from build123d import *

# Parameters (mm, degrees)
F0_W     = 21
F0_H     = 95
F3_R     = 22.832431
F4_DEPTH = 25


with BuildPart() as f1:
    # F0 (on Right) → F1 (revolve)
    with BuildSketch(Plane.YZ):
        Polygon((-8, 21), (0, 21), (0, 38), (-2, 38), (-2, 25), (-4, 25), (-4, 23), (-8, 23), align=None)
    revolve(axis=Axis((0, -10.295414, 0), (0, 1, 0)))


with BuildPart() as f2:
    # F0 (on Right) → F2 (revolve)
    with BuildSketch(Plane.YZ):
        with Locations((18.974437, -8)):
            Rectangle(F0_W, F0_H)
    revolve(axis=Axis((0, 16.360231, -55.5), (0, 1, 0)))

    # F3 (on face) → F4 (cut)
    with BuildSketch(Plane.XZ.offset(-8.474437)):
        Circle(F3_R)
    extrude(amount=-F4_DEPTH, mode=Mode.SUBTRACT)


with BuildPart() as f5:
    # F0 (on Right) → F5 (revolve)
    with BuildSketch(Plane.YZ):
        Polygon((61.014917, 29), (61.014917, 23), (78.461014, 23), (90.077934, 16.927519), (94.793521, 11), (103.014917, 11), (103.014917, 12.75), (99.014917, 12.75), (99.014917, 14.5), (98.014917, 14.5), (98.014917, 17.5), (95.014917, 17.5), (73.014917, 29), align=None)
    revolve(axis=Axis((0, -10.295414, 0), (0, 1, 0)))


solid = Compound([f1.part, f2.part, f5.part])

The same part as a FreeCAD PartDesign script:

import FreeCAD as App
import Part
import Sketcher

V = App.Vector
Q = App.Units.Quantity

doc = App.newDocument("Part")
body = doc.addObject("PartDesign::Body", "Body")

sketch1 = doc.addObject("Sketcher::SketchObject", "Sketch")
body.addObject(sketch1)
sketch1.AttachmentSupport = (doc.YZ_Plane, [""])
sketch1.MapMode = "FlatFace"
sketch1.addGeometry([
    Part.LineSegment(V(-8, 21, 0), V(0, 21, 0)),
    Part.LineSegment(V(0, 21, 0), V(0, 38, 0)),
    Part.LineSegment(V(0, 38, 0), V(-2, 38, 0)),
    Part.LineSegment(V(-2, 38, 0), V(-2, 25, 0)),
    Part.LineSegment(V(-2, 25, 0), V(-4, 25, 0)),
    Part.LineSegment(V(-4, 25, 0), V(-4, 23, 0)),
    Part.LineSegment(V(-4, 23, 0), V(-8, 23, 0)),
    Part.LineSegment(V(-8, 23, 0), V(-8, 21, 0)),
], False)
sketch1.addConstraint([
    Sketcher.Constraint("Coincident", 0, 2, 1, 1),
    Sketcher.Constraint("Coincident", 1, 2, 2, 1),
    Sketcher.Constraint("Coincident", 2, 2, 3, 1),
    Sketcher.Constraint("Coincident", 3, 2, 4, 1),
    Sketcher.Constraint("Coincident", 4, 2, 5, 1),
    Sketcher.Constraint("Coincident", 5, 2, 6, 1),
    Sketcher.Constraint("Coincident", 6, 2, 7, 1),
    Sketcher.Constraint("Coincident", 7, 2, 0, 1),
    Sketcher.Constraint("Horizontal", 0),
    Sketcher.Constraint("Vertical", 1),
    Sketcher.Constraint("Horizontal", 2),
    Sketcher.Constraint("Vertical", 3),
    Sketcher.Constraint("Horizontal", 4),
    Sketcher.Constraint("Vertical", 5),
    Sketcher.Constraint("Horizontal", 6),
    Sketcher.Constraint("Vertical", 7),
    Sketcher.Constraint("PointOnObject", 0, 2, -2),
    Sketcher.Constraint("Equal", 2, 4),
    Sketcher.Constraint("Equal", 4, 5),
    Sketcher.Constraint("Equal", 5, 7),
    Sketcher.Constraint("DistanceX", 0, 1, 0, 2, Q("8 mm")),
    Sketcher.Constraint("DistanceX", 2, 2, 2, 1, Q("2 mm")),
    Sketcher.Constraint("DistanceY", 1, 1, 1, 2, Q("17 mm")),
    Sketcher.Constraint("DistanceY", -1, 1, 0, 2, Q("21 mm")),
])
revolution = doc.addObject("PartDesign::Revolution", "Revolution")
body.addObject(revolution)
revolution.Profile = sketch1
revolution.ReferenceAxis = (sketch1, ["H_Axis"])
revolution.Angle = 360
body2 = doc.addObject("PartDesign::Body", "Body001")

sketch2 = doc.addObject("Sketcher::SketchObject", "Sketch001")
body2.addObject(sketch2)
sketch2.AttachmentSupport = (doc.getObject("YZ_Plane001"), [""])
sketch2.MapMode = "FlatFace"
sketch2.addGeometry([
    Part.LineSegment(V(8, 40, 0), V(8, -56, 0)),
    Part.LineSegment(V(8, -56, 0), V(29, -56, 0)),
    Part.LineSegment(V(29, -56, 0), V(29, 40, 0)),
    Part.LineSegment(V(29, 40, 0), V(8, 40, 0)),
], False)
sketch2.addGeometry(Part.LineSegment(V(8, -56, 0), V(29, -56, 0)), True)
sketch2.addConstraint([
    Sketcher.Constraint("Coincident", 0, 2, 1, 1),
    Sketcher.Constraint("Coincident", 1, 2, 2, 1),
    Sketcher.Constraint("Coincident", 2, 2, 3, 1),
    Sketcher.Constraint("Coincident", 3, 2, 0, 1),
    Sketcher.Constraint("Vertical", 0),
    Sketcher.Constraint("Horizontal", 1),
    Sketcher.Constraint("Vertical", 2),
    Sketcher.Constraint("Horizontal", 3),
    Sketcher.Constraint("Horizontal", 4),
    Sketcher.Constraint("Coincident", 4, 1, 0, 2),
    Sketcher.Constraint("Vertical", 2, 2, 4, 2),
    Sketcher.Constraint("DistanceX", 1, 1, 1, 2, Q("21 mm")),
    Sketcher.Constraint("DistanceY", 0, 2, 0, 1, Q("95 mm")),
    Sketcher.Constraint("DistanceY", 0, 2, -1, 1, Q("55.5 mm")),
    Sketcher.Constraint("DistanceX", -1, 1, 0, 2, Q("8.474437 mm")),
])
revolution2 = doc.addObject("PartDesign::Revolution", "Revolution001")
body2.addObject(revolution2)
revolution2.Profile = sketch2
revolution2.ReferenceAxis = (sketch2, ["Axis0"])
revolution2.Angle = 360

sketch3 = doc.addObject("Sketcher::SketchObject", "Sketch002")
body2.addObject(sketch3)
sketch3.AttachmentSupport = (doc.getObject("XZ_Plane001"), [""])
sketch3.MapMode = "FlatFace"
sketch3.AttachmentOffset = App.Placement(V(0, 0, -8.474437), App.Rotation())
sketch3.addGeometry(Part.Circle(V(0, 0, 0), V(0, 0, 1), 23), False)
sketch3.addConstraint([
    Sketcher.Constraint("Coincident", 0, 3, -1, 1),
    Sketcher.Constraint("Diameter", 0, Q("45.664862 mm")),
])
pocket1 = doc.addObject("PartDesign::Pocket", "Pocket")
body2.addObject(pocket1)
pocket1.Profile = sketch3
pocket1.Length = 25
body3 = doc.addObject("PartDesign::Body", "Body002")

sketch4 = doc.addObject("Sketcher::SketchObject", "Sketch003")
body3.addObject(sketch4)
sketch4.AttachmentSupport = (doc.getObject("YZ_Plane002"), [""])
sketch4.MapMode = "FlatFace"
sketch4.addGeometry([
    Part.LineSegment(V(61, 29, 0), V(61, 23, 0)),
    Part.LineSegment(V(61, 23, 0), V(78.5, 23, 0)),
    Part.LineSegment(V(78.5, 23, 0), V(90.1, 16.9, 0)),
    Part.LineSegment(V(90.1, 16.9, 0), V(94.8, 11, 0)),
    Part.LineSegment(V(94.8, 11, 0), V(103, 11, 0)),
    Part.LineSegment(V(103, 11, 0), V(103, 12.8, 0)),
    Part.LineSegment(V(103, 12.8, 0), V(99, 12.8, 0)),
    Part.LineSegment(V(99, 12.8, 0), V(99, 14.5, 0)),
    Part.LineSegment(V(99, 14.5, 0), V(98, 14.5, 0)),
    Part.LineSegment(V(98, 14.5, 0), V(98, 17.5, 0)),
    Part.LineSegment(V(98, 17.5, 0), V(95, 17.5, 0)),
    Part.LineSegment(V(95, 17.5, 0), V(73, 29, 0)),
    Part.LineSegment(V(73, 29, 0), V(61, 29, 0)),
], False)
sketch4.addConstraint([
    Sketcher.Constraint("Coincident", 0, 2, 1, 1),
    Sketcher.Constraint("Coincident", 1, 2, 2, 1),
    Sketcher.Constraint("Coincident", 2, 2, 3, 1),
    Sketcher.Constraint("Coincident", 3, 2, 4, 1),
    Sketcher.Constraint("Coincident", 4, 2, 5, 1),
    Sketcher.Constraint("Coincident", 5, 2, 6, 1),
    Sketcher.Constraint("Coincident", 6, 2, 7, 1),
    Sketcher.Constraint("Coincident", 7, 2, 8, 1),
    Sketcher.Constraint("Coincident", 8, 2, 9, 1),
    Sketcher.Constraint("Coincident", 9, 2, 10, 1),
    Sketcher.Constraint("Coincident", 10, 2, 11, 1),
    Sketcher.Constraint("Coincident", 11, 2, 12, 1),
    Sketcher.Constraint("Coincident", 12, 2, 0, 1),
    Sketcher.Constraint("Vertical", 0),
    Sketcher.Constraint("Horizontal", 1),
    Sketcher.Constraint("Horizontal", 4),
    Sketcher.Constraint("Vertical", 5),
    Sketcher.Constraint("Horizontal", 6),
    Sketcher.Constraint("Vertical", 7),
    Sketcher.Constraint("Horizontal", 8),
    Sketcher.Constraint("Vertical", 9),
    Sketcher.Constraint("Horizontal", 10),
    Sketcher.Constraint("Horizontal", 12),
    Sketcher.Constraint("Parallel", 2, 11),
    Sketcher.Constraint("Equal", 5, 7),
    Sketcher.Constraint("Equal", 10, 9),
    Sketcher.Constraint("DistanceX", 6, 2, 6, 1, Q("4 mm")),
    Sketcher.Constraint("DistanceX", 8, 2, 8, 1, Q("1 mm")),
    Sketcher.Constraint("DistanceX", 10, 2, 10, 1, Q("3 mm")),
    Sketcher.Constraint("DistanceX", 12, 2, 12, 1, Q("12 mm")),
    Sketcher.Constraint("DistanceY", 0, 2, 0, 1, Q("6 mm")),
    Sketcher.Constraint("DistanceY", -1, 1, 0, 2, Q("23 mm")),
    Sketcher.Constraint("DistanceY", -1, 1, 3, 2, Q("11 mm")),
    Sketcher.Constraint("DistanceX", 0, 2, 4, 2, Q("42 mm")),
    Sketcher.Constraint("DistanceY", 5, 1, 5, 2, Q("1.75 mm")),
    Sketcher.Constraint("DistanceX", 1, 1, 1, 2, Q("17.446097 mm")),
    Sketcher.Constraint("DistanceX", 4, 1, 4, 2, Q("8.221396 mm")),
    Sketcher.Constraint("DistanceY", -1, 1, 2, 2, Q("16.927519 mm")),
    Sketcher.Constraint("DistanceX", -1, 1, 3, 2, Q("94.793521 mm")),
])
revolution3 = doc.addObject("PartDesign::Revolution", "Revolution002")
body3.addObject(revolution3)
revolution3.Profile = sketch4
revolution3.ReferenceAxis = (sketch4, ["H_Axis"])
revolution3.Angle = 360

doc.recompute()
